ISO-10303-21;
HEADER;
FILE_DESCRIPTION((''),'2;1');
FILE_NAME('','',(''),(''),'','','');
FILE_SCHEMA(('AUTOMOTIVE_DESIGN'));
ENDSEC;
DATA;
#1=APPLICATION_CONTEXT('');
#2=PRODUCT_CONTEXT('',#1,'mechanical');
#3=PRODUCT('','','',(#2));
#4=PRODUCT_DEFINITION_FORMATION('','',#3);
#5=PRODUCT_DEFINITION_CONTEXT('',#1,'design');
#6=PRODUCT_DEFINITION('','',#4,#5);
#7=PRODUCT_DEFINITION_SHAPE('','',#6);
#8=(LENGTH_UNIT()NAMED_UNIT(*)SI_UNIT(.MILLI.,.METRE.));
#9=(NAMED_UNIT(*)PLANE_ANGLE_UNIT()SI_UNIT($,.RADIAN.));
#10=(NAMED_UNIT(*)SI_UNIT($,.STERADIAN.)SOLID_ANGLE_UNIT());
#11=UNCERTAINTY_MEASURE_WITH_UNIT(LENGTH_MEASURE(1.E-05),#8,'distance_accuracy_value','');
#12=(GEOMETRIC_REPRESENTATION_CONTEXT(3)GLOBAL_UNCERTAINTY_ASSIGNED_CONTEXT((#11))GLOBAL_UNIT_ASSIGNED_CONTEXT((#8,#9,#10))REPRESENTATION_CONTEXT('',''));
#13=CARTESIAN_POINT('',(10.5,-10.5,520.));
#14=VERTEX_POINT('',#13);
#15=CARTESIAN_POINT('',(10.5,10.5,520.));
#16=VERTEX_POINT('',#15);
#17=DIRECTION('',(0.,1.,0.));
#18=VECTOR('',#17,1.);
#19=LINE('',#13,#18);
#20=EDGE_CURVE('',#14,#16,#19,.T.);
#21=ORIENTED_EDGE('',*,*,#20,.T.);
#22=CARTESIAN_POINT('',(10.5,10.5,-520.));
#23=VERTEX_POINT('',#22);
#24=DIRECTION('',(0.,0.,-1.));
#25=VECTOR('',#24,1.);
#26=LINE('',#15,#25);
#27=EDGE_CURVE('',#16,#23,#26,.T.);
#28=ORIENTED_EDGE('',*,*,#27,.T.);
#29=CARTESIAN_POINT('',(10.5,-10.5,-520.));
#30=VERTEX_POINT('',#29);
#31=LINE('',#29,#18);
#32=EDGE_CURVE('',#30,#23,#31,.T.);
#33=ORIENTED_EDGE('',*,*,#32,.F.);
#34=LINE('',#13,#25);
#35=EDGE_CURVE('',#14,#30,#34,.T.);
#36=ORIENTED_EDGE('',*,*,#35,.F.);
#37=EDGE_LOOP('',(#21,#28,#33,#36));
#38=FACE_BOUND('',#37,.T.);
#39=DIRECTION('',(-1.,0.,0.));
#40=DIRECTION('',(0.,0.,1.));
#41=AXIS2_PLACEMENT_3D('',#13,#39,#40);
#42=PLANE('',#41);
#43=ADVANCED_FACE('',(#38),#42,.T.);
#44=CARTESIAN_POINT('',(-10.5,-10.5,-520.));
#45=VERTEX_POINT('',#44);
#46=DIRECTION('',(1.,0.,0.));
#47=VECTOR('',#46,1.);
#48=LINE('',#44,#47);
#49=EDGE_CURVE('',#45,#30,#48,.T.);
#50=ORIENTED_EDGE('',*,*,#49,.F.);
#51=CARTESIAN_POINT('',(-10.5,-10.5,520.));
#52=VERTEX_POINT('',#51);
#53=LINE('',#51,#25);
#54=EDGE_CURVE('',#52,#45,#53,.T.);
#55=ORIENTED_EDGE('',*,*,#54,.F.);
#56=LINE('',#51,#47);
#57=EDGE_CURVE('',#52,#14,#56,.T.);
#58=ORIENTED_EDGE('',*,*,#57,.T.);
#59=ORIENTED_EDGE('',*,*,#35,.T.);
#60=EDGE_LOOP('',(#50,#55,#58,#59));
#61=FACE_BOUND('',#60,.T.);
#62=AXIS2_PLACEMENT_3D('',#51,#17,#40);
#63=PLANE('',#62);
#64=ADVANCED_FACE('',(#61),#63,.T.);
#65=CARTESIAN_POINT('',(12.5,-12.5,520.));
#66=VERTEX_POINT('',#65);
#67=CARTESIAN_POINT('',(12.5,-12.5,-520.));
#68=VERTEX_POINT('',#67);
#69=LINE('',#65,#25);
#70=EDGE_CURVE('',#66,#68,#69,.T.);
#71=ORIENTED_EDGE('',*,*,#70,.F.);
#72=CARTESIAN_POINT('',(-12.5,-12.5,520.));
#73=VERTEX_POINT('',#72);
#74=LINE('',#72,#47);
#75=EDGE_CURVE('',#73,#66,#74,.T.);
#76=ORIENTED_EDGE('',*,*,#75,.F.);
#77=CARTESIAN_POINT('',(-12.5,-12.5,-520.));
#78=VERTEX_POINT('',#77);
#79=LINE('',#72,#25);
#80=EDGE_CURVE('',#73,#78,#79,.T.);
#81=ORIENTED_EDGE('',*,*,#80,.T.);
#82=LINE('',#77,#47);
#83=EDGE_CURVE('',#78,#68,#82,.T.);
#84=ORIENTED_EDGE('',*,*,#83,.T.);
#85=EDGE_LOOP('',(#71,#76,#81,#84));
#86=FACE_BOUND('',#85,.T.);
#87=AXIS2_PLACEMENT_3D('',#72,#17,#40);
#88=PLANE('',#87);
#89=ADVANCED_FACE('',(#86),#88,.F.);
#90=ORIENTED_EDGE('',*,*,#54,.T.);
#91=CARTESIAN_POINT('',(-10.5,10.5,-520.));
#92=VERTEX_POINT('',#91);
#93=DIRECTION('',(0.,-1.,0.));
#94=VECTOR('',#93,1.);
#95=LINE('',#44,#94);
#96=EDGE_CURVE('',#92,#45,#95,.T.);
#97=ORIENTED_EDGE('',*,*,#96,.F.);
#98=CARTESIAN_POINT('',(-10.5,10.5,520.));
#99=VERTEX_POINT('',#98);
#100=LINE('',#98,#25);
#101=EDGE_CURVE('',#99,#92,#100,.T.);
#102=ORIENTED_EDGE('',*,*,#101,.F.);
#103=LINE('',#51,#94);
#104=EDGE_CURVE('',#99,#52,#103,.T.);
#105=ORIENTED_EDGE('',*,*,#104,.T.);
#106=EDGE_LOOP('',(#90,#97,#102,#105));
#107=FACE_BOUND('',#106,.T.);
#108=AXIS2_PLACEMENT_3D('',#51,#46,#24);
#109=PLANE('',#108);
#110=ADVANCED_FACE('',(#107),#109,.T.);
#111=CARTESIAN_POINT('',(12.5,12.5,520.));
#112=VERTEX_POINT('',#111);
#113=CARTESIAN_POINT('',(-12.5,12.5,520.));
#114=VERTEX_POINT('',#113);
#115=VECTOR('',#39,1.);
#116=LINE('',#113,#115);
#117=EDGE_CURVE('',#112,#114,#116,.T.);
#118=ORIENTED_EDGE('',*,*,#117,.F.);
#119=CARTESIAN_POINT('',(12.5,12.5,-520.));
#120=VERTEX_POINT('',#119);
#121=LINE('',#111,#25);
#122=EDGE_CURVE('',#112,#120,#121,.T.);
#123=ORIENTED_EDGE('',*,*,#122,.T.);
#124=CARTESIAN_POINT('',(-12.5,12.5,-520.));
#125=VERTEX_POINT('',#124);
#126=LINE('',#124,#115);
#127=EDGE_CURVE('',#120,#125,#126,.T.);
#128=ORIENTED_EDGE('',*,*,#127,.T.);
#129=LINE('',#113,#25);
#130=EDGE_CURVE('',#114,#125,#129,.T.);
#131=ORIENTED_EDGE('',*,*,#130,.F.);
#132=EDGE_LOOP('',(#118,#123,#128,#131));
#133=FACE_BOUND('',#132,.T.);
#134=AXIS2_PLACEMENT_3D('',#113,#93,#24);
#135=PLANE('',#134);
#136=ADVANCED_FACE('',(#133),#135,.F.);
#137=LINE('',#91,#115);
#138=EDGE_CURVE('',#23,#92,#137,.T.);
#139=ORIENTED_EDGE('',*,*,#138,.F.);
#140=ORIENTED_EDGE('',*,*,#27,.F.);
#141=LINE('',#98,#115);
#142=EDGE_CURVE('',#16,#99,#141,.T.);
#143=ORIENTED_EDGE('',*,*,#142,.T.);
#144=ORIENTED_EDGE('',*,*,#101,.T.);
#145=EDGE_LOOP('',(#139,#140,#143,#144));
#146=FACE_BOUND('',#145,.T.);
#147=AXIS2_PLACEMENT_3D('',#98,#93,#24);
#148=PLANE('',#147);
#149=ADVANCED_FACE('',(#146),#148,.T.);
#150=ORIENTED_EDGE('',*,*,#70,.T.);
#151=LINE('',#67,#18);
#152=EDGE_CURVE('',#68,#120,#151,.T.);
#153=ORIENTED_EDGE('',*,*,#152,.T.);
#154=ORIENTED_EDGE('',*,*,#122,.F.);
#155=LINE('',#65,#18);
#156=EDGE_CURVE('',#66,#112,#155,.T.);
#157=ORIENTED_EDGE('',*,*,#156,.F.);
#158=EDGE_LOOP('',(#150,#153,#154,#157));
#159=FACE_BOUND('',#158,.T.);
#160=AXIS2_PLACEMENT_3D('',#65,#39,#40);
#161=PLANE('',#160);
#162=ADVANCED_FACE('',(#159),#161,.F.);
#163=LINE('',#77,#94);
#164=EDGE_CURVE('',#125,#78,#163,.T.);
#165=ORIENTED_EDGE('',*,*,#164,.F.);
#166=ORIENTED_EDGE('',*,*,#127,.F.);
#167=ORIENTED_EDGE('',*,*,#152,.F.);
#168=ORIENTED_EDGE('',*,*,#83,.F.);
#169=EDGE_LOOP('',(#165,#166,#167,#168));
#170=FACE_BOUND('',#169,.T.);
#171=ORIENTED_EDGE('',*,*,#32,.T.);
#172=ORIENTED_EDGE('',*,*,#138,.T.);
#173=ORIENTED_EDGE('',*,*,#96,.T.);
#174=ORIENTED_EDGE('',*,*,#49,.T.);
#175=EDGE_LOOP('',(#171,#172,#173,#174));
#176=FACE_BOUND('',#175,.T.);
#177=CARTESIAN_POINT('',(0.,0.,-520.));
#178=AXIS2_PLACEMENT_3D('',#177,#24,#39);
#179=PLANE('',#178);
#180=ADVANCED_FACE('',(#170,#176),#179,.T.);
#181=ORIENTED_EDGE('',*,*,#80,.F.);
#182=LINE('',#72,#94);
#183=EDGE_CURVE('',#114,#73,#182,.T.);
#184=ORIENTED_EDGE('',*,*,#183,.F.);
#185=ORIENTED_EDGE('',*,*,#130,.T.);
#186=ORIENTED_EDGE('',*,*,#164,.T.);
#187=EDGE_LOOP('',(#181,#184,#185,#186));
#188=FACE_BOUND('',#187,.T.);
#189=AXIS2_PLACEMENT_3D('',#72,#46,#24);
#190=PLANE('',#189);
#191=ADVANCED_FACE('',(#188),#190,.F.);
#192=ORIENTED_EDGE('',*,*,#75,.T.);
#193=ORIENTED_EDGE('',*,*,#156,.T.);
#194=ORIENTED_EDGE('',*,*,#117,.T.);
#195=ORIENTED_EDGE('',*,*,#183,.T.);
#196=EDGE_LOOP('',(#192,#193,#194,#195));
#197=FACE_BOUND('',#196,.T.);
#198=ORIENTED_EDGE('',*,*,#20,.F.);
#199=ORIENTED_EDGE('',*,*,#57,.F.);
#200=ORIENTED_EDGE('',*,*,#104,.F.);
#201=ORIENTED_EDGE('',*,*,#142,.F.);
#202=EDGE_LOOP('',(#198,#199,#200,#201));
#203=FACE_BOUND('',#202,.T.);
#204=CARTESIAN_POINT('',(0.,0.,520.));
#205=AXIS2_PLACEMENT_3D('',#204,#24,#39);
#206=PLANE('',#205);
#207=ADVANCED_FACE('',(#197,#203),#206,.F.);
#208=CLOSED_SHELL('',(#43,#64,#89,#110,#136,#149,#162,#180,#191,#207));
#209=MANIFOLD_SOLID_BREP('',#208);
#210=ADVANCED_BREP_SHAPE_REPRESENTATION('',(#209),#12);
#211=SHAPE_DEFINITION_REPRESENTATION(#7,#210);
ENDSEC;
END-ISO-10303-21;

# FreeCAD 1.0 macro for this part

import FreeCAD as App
import Part
import Sketcher

V = App.Vector
Q = App.Units.Quantity

doc = App.newDocument("Part")
params = doc.addObject("Spreadsheet::Sheet", "Params")
for row, (alias, value) in enumerate([
    ("sketch1_width", "25 mm"),
    ("sketch1_width2", "21 mm"),
    ("pad1_length", "1040 mm"),
], start=1):
    params.set(f"A{row}", alias)
    params.set(f"B{row}", "=" + value)
    params.setAlias(f"B{row}", alias)

body = doc.addObject("PartDesign::Body", "Body")

# Sketch on XY plane
sketch1 = body.newObject("Sketcher::SketchObject", "Sketch")
sketch1.AttachmentSupport = (doc.getObject("XY_Plane"), [""])
sketch1.MapMode = "FlatFace"
sketch1.addGeometry([
    Part.LineSegment(V(-12, 12, 0), V(-12, -12, 0)),  # 0
    Part.LineSegment(V(-12, -12, 0), V(12, -12, 0)),  # 1
    Part.LineSegment(V(12, -12, 0), V(12, 12, 0)),  # 2
    Part.LineSegment(V(12, 12, 0), V(-12, 12, 0)),  # 3
    Part.LineSegment(V(10, -10, 0), V(-10, -10, 0)),  # 4
    Part.LineSegment(V(-10, -10, 0), V(-10, 10, 0)),  # 5
    Part.LineSegment(V(-10, 10, 0), V(10, 10, 0)),  # 6
    Part.LineSegment(V(10, 10, 0), V(10, -10, 0)),  # 7
], False)
sketch1.addConstraint([
    Sketcher.Constraint("Coincident", 0, 2, 1, 1),
    Sketcher.Constraint("Coincident", 1, 2, 2, 1),
    Sketcher.Constraint("Coincident", 2, 2, 3, 1),
    Sketcher.Constraint("Coincident", 3, 2, 0, 1),
    Sketcher.Constraint("Coincident", 4, 2, 5, 1),
    Sketcher.Constraint("Coincident", 5, 2, 6, 1),
    Sketcher.Constraint("Coincident", 6, 2, 7, 1),
    Sketcher.Constraint("Coincident", 7, 2, 4, 1),
    Sketcher.Constraint("Vertical", 0),
    Sketcher.Constraint("Horizontal", 1),
    Sketcher.Constraint("Vertical", 2),
    Sketcher.Constraint("Horizontal", 3),
    Sketcher.Constraint("Horizontal", 4),
    Sketcher.Constraint("Vertical", 5),
    Sketcher.Constraint("Horizontal", 6),
    Sketcher.Constraint("Vertical", 7),
    Sketcher.Constraint("Symmetric", 0, 2, 2, 2, -1, 1),
    Sketcher.Constraint("Symmetric", 4, 2, 6, 2, -1, 1),
    Sketcher.Constraint("Equal", 3, 0),
    Sketcher.Constraint("Equal", 6, 5),
    Sketcher.Constraint("DistanceX", 1, 1, 1, 2, Q("25 mm")),
    Sketcher.Constraint("DistanceX", 4, 2, 4, 1, Q("21 mm")),
])
sketch1.setExpression("Constraints[20]", "Params.sketch1_width")
sketch1.setExpression("Constraints[21]", "Params.sketch1_width2")
pad1 = body.newObject("PartDesign::Pad", "Pad")
pad1.Profile = sketch1
pad1.setExpression("Length", "Params.pad1_length")
pad1.Midplane = True

doc.recompute()
